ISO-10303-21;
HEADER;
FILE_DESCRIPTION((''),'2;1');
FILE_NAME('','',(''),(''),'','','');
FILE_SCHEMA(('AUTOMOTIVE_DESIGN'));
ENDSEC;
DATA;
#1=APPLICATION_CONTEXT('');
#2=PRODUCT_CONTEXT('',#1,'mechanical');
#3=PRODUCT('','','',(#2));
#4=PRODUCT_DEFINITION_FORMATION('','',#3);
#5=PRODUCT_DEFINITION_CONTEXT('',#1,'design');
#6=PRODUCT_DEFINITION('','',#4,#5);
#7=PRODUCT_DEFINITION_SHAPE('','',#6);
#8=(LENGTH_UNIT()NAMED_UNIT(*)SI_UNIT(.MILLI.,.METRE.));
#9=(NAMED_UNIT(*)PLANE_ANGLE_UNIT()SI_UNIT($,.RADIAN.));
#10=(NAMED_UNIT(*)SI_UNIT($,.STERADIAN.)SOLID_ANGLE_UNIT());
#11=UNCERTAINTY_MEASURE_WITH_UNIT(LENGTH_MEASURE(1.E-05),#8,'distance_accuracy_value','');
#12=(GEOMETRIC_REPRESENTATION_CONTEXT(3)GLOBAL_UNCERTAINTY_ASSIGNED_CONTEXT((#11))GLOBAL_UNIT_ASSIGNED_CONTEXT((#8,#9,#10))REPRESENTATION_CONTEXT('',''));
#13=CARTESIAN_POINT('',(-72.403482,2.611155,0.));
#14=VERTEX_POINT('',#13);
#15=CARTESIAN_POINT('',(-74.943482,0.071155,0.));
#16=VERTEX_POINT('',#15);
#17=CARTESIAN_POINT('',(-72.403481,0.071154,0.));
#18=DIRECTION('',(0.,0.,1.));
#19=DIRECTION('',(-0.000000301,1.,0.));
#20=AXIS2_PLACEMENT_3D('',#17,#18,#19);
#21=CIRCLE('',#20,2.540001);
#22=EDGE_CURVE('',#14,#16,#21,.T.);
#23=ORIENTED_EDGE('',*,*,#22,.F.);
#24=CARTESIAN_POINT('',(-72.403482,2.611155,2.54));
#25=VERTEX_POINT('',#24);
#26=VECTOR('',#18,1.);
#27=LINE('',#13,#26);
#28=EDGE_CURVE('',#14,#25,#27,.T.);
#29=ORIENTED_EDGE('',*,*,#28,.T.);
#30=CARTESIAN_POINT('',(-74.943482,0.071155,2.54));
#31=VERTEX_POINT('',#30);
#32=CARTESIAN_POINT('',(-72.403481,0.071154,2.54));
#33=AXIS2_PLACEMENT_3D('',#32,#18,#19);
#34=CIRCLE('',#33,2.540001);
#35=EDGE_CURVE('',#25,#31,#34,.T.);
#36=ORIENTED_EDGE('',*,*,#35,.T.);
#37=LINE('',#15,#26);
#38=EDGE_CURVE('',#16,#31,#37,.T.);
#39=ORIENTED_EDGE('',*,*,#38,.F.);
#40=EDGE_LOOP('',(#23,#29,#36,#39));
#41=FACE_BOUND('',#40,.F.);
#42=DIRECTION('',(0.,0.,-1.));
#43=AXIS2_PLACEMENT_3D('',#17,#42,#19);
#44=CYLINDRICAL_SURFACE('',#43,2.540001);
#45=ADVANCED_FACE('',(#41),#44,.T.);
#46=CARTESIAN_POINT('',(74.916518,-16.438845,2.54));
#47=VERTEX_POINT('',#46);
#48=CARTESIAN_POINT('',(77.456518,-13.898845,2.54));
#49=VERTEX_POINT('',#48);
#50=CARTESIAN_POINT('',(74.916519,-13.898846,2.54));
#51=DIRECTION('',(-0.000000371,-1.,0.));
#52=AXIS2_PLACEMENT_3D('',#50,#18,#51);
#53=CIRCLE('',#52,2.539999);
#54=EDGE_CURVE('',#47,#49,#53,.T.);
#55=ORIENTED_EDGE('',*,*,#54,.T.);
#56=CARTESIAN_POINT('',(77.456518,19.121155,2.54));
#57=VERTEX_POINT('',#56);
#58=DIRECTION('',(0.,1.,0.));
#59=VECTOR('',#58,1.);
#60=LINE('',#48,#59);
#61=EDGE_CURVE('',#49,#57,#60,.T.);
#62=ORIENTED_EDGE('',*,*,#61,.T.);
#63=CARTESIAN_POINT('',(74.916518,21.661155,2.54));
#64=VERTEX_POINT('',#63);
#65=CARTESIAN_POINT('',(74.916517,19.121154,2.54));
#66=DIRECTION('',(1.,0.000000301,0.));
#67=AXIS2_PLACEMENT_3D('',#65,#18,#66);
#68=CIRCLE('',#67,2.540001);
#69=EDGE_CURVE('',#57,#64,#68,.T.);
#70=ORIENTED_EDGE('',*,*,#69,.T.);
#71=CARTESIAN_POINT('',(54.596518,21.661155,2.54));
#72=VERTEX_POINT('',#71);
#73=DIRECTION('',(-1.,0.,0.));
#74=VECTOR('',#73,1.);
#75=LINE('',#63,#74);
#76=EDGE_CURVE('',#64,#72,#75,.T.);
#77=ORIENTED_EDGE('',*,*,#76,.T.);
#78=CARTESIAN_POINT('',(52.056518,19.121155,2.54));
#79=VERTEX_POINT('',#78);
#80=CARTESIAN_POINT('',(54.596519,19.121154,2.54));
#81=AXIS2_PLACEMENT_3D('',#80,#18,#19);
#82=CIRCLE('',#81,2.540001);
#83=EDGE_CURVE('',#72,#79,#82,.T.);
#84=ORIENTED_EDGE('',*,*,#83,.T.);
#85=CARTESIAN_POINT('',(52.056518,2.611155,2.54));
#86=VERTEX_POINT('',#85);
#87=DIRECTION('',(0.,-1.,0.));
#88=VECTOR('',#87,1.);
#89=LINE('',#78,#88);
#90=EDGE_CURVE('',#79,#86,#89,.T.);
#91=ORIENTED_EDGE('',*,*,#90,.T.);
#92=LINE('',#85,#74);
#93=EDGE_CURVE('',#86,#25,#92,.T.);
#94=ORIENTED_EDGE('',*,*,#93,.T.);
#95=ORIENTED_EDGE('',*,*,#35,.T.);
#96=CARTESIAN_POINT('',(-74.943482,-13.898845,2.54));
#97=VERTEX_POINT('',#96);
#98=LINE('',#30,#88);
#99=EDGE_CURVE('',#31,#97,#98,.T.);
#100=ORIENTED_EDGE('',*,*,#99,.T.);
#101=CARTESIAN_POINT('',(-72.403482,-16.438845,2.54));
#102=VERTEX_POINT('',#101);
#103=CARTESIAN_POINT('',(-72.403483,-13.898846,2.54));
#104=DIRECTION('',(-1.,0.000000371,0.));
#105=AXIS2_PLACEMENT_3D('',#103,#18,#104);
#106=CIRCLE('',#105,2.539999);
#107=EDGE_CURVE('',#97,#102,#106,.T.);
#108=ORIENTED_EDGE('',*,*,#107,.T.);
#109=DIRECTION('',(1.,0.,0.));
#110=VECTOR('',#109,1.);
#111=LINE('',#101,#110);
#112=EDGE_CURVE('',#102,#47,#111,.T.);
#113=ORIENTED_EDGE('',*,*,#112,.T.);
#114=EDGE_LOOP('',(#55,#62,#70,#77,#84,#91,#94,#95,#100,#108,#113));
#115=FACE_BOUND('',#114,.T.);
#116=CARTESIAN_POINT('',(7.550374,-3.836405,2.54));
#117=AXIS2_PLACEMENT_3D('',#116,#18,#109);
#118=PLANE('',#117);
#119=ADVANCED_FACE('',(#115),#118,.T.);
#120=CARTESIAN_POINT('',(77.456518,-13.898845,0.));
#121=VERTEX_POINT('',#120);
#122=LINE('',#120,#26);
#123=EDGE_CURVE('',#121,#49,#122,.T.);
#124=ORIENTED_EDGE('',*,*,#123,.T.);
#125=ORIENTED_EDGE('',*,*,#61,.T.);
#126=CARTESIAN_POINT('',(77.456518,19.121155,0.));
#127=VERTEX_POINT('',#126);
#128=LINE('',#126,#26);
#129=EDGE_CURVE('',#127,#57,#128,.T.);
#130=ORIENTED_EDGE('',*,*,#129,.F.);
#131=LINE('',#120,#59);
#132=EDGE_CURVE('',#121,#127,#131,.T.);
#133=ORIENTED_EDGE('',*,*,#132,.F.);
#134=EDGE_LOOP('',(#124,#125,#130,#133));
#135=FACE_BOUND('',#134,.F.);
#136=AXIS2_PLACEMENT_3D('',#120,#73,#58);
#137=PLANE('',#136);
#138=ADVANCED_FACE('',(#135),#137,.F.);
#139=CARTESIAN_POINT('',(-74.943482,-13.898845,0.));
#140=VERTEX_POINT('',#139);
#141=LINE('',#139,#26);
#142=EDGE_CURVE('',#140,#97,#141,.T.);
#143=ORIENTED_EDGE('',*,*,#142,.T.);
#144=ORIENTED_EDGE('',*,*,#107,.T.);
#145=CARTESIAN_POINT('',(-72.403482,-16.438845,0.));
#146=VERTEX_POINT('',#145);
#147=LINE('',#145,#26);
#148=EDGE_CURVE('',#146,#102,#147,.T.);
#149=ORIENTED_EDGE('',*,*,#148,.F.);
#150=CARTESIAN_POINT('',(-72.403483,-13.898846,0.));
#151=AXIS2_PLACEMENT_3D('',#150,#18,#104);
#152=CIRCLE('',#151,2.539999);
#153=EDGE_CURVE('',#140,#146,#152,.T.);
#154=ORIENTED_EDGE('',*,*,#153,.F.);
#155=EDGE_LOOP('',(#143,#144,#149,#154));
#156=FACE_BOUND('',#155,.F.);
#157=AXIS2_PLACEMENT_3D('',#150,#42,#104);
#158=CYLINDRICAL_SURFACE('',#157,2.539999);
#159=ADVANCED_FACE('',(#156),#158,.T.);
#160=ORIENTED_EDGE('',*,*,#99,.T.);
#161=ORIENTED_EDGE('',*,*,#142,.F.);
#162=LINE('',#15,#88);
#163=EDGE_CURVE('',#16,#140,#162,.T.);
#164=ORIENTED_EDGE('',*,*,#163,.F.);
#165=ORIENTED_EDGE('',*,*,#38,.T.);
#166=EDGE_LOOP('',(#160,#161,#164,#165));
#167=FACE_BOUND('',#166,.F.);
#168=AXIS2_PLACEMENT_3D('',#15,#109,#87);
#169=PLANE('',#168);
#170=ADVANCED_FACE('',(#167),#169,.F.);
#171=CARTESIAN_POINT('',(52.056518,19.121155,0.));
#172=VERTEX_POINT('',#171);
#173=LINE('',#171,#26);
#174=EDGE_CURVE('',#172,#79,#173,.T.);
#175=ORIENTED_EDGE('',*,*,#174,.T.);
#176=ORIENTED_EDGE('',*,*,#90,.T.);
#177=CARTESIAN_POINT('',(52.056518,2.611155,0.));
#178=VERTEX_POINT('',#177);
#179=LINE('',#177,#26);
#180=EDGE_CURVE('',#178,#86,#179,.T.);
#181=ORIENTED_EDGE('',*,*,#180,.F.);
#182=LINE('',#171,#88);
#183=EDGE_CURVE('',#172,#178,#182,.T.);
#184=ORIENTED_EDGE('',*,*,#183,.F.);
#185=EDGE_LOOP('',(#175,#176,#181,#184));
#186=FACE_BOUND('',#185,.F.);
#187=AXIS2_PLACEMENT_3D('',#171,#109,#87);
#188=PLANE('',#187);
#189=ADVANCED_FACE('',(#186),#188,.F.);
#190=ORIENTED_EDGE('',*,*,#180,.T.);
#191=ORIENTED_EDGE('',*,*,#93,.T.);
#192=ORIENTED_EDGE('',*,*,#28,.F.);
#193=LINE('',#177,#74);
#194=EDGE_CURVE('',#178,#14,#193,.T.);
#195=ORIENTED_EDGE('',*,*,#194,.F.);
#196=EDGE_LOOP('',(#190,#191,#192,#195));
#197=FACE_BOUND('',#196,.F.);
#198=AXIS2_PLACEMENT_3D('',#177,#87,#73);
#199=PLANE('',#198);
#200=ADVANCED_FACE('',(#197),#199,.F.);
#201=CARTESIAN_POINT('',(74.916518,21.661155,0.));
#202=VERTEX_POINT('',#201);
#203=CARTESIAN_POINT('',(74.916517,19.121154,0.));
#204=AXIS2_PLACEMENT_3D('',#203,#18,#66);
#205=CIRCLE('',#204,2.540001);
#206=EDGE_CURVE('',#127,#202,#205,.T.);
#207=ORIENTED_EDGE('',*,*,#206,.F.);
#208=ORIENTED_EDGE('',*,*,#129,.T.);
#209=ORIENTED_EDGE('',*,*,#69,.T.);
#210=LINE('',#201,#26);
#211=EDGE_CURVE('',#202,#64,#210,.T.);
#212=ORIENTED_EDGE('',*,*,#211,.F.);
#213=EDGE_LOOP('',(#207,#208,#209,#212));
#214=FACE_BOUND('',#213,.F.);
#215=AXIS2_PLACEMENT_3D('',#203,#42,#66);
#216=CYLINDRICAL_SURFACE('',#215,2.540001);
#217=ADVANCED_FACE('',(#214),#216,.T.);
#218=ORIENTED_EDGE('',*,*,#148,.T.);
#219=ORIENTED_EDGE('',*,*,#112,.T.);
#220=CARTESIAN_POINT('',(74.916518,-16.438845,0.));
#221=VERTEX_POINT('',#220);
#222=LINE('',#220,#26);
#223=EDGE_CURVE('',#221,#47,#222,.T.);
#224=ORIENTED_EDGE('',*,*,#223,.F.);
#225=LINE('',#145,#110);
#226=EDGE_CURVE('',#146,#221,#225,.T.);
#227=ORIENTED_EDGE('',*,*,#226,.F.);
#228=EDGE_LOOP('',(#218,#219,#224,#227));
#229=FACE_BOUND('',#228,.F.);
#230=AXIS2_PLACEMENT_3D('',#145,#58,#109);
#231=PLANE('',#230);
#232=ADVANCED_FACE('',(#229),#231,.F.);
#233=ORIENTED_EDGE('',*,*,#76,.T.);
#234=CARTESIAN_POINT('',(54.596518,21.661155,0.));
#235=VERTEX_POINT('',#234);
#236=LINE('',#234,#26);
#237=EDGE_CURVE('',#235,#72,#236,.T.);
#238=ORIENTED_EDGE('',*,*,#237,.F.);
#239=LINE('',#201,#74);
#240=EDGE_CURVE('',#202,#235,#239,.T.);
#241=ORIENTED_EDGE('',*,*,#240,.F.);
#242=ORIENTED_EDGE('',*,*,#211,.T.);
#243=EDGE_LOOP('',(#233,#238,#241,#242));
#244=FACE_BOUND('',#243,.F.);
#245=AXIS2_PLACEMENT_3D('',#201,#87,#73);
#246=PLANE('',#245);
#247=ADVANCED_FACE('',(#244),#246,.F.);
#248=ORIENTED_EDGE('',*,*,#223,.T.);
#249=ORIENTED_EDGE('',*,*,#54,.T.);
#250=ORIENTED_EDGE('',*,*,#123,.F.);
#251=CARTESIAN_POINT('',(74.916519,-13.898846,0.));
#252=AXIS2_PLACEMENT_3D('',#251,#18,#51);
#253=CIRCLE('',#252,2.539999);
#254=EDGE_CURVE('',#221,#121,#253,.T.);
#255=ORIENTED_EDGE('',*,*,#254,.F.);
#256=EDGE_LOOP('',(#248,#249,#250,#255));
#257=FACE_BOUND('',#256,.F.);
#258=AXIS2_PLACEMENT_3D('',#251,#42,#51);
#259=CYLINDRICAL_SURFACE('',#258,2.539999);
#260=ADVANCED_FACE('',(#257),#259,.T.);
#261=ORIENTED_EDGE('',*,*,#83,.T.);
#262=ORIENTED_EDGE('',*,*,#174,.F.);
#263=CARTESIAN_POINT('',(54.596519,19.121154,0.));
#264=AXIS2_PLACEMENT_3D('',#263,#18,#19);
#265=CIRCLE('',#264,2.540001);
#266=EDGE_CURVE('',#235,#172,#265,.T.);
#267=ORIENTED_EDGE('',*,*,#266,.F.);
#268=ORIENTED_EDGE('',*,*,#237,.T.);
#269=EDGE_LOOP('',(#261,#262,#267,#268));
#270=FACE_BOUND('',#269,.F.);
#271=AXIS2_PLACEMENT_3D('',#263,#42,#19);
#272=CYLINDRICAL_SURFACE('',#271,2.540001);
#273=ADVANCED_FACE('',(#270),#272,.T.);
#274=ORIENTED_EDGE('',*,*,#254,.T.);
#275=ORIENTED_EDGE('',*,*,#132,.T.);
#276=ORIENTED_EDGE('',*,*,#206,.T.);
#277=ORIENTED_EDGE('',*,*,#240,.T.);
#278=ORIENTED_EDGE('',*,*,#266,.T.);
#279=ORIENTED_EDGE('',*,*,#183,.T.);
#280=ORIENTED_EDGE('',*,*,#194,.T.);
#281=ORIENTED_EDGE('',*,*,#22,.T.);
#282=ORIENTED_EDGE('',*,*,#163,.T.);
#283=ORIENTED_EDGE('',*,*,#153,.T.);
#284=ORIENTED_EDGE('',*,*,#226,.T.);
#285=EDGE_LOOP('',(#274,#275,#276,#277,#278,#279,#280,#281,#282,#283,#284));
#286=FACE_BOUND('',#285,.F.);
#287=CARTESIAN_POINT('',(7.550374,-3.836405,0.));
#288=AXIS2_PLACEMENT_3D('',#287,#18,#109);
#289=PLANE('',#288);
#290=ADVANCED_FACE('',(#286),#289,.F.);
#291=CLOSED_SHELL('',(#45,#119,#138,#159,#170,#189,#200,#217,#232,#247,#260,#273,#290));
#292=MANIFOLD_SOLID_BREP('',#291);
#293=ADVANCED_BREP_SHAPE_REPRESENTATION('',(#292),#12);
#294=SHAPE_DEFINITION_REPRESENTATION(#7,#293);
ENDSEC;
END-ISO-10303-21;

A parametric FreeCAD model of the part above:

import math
import FreeCAD as App
import Part
import Sketcher

V = App.Vector
Q = App.Units.Quantity

doc = App.newDocument("Part")
body = doc.addObject("PartDesign::Body", "Body")

sketch1 = body.newObject("Sketcher::SketchObject", "Sketch")
sketch1.AttachmentSupport = (doc.getObject("XY_Plane"), [""])
sketch1.MapMode = "FlatFace"
sketch1.addGeometry(Part.LineSegment(V(52.1, 2.6, 0), V(-72.4, 2.6, 0)), False)
sketch1.addGeometry(Part.ArcOfCircle(Part.Circle(V(-72.4, 0.1, 0), V(0, 0, 1), 2.5), math.radians(90), math.radians(180)), False)
sketch1.addGeometry(Part.LineSegment(V(-74.9, 0.1, 0), V(-74.9, -13.9, 0)), False)
sketch1.addGeometry(Part.ArcOfCircle(Part.Circle(V(-72.4, -13.9, 0), V(0, 0, 1), 2.5), math.radians(180), math.radians(270)), False)
sketch1.addGeometry(Part.LineSegment(V(-72.4, -16.4, 0), V(74.9, -16.4, 0)), False)
sketch1.addGeometry(Part.ArcOfCircle(Part.Circle(V(74.9, -13.9, 0), V(0, 0, 1), 2.5), math.radians(-90), math.radians(0)), False)
sketch1.addGeometry(Part.LineSegment(V(77.5, -13.9, 0), V(77.5, 19.1, 0)), False)
sketch1.addGeometry(Part.ArcOfCircle(Part.Circle(V(74.9, 19.1, 0), V(0, 0, 1), 2.5), math.radians(0), math.radians(90)), False)
sketch1.addGeometry(Part.LineSegment(V(74.9, 21.7, 0), V(54.6, 21.7, 0)), False)
sketch1.addGeometry(Part.ArcOfCircle(Part.Circle(V(54.6, 19.1, 0), V(0, 0, 1), 2.5), math.radians(90), math.radians(180)), False)
sketch1.addGeometry(Part.LineSegment(V(52.1, 19.1, 0), V(52.1, 2.6, 0)), False)
sketch1.addConstraint(Sketcher.Constraint("Tangent", 0, 2, 1, 1))
sketch1.addConstraint(Sketcher.Constraint("Tangent", 1, 2, 2, 1))
sketch1.addConstraint(Sketcher.Constraint("Tangent", 2, 2, 3, 1))
sketch1.addConstraint(Sketcher.Constraint("Tangent", 3, 2, 4, 1))
sketch1.addConstraint(Sketcher.Constraint("Tangent", 4, 2, 5, 1))
sketch1.addConstraint(Sketcher.Constraint("Tangent", 5, 2, 6, 1))
sketch1.addConstraint(Sketcher.Constraint("Tangent", 6, 2, 7, 1))
sketch1.addConstraint(Sketcher.Constraint("Tangent", 7, 2, 8, 1))
sketch1.addConstraint(Sketcher.Constraint("Tangent", 8, 2, 9, 1))
sketch1.addConstraint(Sketcher.Constraint("Tangent", 9, 2, 10, 1))
sketch1.addConstraint(Sketcher.Constraint("Coincident", 10, 2, 0, 1))
sketch1.addConstraint(Sketcher.Constraint("Horizontal", 0))
sketch1.addConstraint(Sketcher.Constraint("Vertical", 2))
sketch1.addConstraint(Sketcher.Constraint("Horizontal", 4))
sketch1.addConstraint(Sketcher.Constraint("Vertical", 6))
sketch1.addConstraint(Sketcher.Constraint("Horizontal", 8))
sketch1.addConstraint(Sketcher.Constraint("Vertical", 10))
sketch1.addConstraint(Sketcher.Constraint("Equal", 1, 3))
sketch1.addConstraint(Sketcher.Constraint("Equal", 3, 5))
sketch1.addConstraint(Sketcher.Constraint("Equal", 5, 7))
sketch1.addConstraint(Sketcher.Constraint("Equal", 7, 9))
sketch1.addConstraint(Sketcher.Constraint("Radius", 1, Q("0.1 in")))
sketch1.addConstraint(Sketcher.Constraint("DistanceX", 0, 2, 0, 1, Q("4.9 in")))
sketch1.addConstraint(Sketcher.Constraint("DistanceX", 4, 1, 4, 2, Q("5.8 in")))
sketch1.addConstraint(Sketcher.Constraint("DistanceY", 6, 1, 6, 2, Q("1.3 in")))
sketch1.addConstraint(Sketcher.Constraint("DistanceY", 2, 2, 2, 1, Q("0.55 in")))
sketch1.addConstraint(Sketcher.Constraint("DistanceX", 1, 3, -1, 1, 72.403481))
sketch1.addConstraint(Sketcher.Constraint("DistanceY", -1, 1, 1, 3, 0.071154))
pad1 = body.newObject("PartDesign::Pad", "Pad")
pad1.Profile = sketch1
pad1.Length = Q("0.1 in")

doc.recompute()
